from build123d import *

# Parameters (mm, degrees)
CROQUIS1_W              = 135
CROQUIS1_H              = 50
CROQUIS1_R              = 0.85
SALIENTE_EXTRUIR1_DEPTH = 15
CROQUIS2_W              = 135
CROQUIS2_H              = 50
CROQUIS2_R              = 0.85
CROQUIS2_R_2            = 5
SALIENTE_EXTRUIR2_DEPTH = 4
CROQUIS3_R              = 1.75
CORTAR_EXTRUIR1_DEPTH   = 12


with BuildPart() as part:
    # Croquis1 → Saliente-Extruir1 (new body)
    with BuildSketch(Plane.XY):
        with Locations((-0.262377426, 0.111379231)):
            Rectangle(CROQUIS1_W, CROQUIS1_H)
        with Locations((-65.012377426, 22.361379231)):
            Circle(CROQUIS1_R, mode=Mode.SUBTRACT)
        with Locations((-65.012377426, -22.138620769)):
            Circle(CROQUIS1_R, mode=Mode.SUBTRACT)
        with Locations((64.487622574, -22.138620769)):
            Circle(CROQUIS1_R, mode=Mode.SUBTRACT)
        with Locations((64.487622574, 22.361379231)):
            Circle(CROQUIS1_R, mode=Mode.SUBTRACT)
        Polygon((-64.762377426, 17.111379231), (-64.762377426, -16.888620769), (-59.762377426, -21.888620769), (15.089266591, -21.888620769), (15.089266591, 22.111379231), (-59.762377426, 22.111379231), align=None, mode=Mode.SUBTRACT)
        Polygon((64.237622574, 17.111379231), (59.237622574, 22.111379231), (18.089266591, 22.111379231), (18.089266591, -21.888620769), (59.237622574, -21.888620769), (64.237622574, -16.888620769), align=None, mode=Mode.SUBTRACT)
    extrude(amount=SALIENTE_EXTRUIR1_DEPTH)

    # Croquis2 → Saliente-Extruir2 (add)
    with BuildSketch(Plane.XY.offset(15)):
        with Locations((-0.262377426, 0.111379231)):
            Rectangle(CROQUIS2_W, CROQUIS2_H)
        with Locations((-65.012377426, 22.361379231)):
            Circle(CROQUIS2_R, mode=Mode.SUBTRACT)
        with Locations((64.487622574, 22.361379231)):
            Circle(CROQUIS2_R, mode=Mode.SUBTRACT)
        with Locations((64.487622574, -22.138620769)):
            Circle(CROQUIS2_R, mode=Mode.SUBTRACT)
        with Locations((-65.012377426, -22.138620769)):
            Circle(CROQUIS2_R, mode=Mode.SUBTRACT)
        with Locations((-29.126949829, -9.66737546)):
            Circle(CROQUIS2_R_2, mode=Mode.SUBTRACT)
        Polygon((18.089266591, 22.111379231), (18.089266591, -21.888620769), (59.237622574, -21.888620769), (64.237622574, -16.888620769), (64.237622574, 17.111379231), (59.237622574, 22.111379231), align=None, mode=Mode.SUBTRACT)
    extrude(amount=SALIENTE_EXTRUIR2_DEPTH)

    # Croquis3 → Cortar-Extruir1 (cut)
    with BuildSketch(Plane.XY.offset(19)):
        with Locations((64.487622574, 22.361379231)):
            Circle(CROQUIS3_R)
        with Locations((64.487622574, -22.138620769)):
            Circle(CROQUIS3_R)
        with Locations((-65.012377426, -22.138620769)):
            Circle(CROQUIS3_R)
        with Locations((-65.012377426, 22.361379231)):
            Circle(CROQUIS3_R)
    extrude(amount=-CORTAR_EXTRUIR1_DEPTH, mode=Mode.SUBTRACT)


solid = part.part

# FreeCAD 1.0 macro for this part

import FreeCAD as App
import Part
import Sketcher
from FreeCAD import Vector
Q = App.Units.Quantity


def add_polygon(sketch, points):
    """Adds a closed chain of lines whose ends are joined by coincident constraints."""
    first, n = sketch.GeometryCount, len(points)
    for a, b in zip(points, points[1:] + points[:1]):
        sketch.addGeometry(Part.LineSegment(App.Vector(*a, 0), App.Vector(*b, 0)), False)
    for i in range(n):
        sketch.addConstraint(Sketcher.Constraint("Coincident", first + i, 2, first + (i + 1) % n, 1))

doc = App.newDocument("Part")
body = doc.addObject("PartDesign::Body", "Body")

# Sketch on XY plane
sketch1 = doc.addObject("Sketcher::SketchObject", "Sketch")
body.addObject(sketch1)
sketch1.AttachmentSupport = (doc.XY_Plane, [""])
sketch1.MapMode = "FlatFace"
add_polygon(sketch1, [(-67.762377, 25.111379), (-67.762377, -24.888621), (67.237623, -24.888621), (67.237623, 25.111379)])  # lines 0-3
sketch1.addGeometry(Part.Circle(Vector(-65.012377, -22.138621, 0), Vector(0, 0, 1), 0.85), False)  # 4
sketch1.addGeometry(Part.Circle(Vector(64.487623, -22.138621, 0), Vector(0, 0, 1), 0.85), False)  # 5
add_polygon(sketch1, [(-64.762377, -16.888621), (-64.762377, 17.111379), (-59.762377, 22.111379), (15.089267, 22.111379), (15.089267, -21.888621), (-59.762377, -21.888621)])  # lines 6-11
sketch1.addGeometry(Part.Circle(Vector(-65.012377, 22.361379, 0), Vector(0, 0, 1), 0.85), False)  # 12
add_polygon(sketch1, [(59.237623, 22.111379), (64.237623, 17.111379), (64.237623, -16.888621), (59.237623, -21.888621), (18.089267, -21.888621), (18.089267, 22.111379)])  # lines 13-18
sketch1.addGeometry(Part.Circle(Vector(64.487623, 22.361379, 0), Vector(0, 0, 1), 0.85), False)  # 19
sketch1.addConstraint([
    Sketcher.Constraint("Vertical", 0),
    Sketcher.Constraint("Horizontal", 1),
    Sketcher.Constraint("Vertical", 2),
    Sketcher.Constraint("Horizontal", 3),
    Sketcher.Constraint("Vertical", 6),
    Sketcher.Constraint("Horizontal", 8),
    Sketcher.Constraint("Vertical", 9),
    Sketcher.Constraint("Horizontal", 10),
    Sketcher.Constraint("Vertical", 14),
    Sketcher.Constraint("Horizontal", 16),
    Sketcher.Constraint("Vertical", 17),
    Sketcher.Constraint("Horizontal", 18),
    Sketcher.Constraint("Equal", 4, 5),
    Sketcher.Constraint("Equal", 5, 12),
    Sketcher.Constraint("Equal", 12, 19),
    Sketcher.Constraint("Perpendicular", 7, 11),
    Sketcher.Constraint("Parallel", 11, 13),
    Sketcher.Constraint("Perpendicular", 13, 15),
    Sketcher.Constraint("Horizontal", 4, 3, 5, 3),
    Sketcher.Constraint("Horizontal", 12, 3, 19, 3),
    Sketcher.Constraint("Horizontal", 6, 2, 13, 2),
    Sketcher.Constraint("Horizontal", 11, 2, 14, 2),
    Sketcher.Constraint("Horizontal", 10, 2, 15, 2),
    Sketcher.Constraint("Horizontal", 8, 2, 17, 2),
    Sketcher.Constraint("Vertical", 4, 3, 12, 3),
    Sketcher.Constraint("Vertical", 5, 3, 19, 3),
    Sketcher.Constraint("Vertical", 7, 2, 10, 2),
    Sketcher.Constraint("Vertical", 15, 2, 18, 2),
    Sketcher.Constraint("Diameter", 4, Q("1.7 mm")),
    Sketcher.Constraint("DistanceX", 1, 1, 1, 2, Q("135 mm")),
    Sketcher.Constraint("DistanceY", 0, 2, 0, 1, Q("50 mm")),
    Sketcher.Constraint("DistanceY", 6, 1, 6, 2, Q("34 mm")),
    Sketcher.Constraint("DistanceY", 9, 2, 9, 1, Q("44 mm")),
    Sketcher.Constraint("DistanceX", 3, 2, 6, 2, Q("3 mm")),
    Sketcher.Constraint("DistanceY", 6, 2, 3, 2, Q("8 mm")),
    Sketcher.Constraint("DistanceX", 13, 2, 2, 2, Q("3 mm")),
    Sketcher.Constraint("DistanceX", 9, 2, 16, 2, Q("3 mm")),
    Sketcher.Constraint("DistanceX", 4, 3, 5, 3, Q("129.5 mm")),
    Sketcher.Constraint("DistanceY", 4, 3, 12, 3, Q("44.5 mm")),
    Sketcher.Constraint("DistanceX", 0, 2, 4, 3, Q("2.75 mm")),
    Sketcher.Constraint("DistanceY", 0, 2, 4, 3, Q("2.75 mm")),
    Sketcher.Constraint("DistanceX", 8, 1, 8, 2, Q("74.851644 mm")),
    Sketcher.Constraint("DistanceY", 4, 3, -1, 1, Q("22.138621 mm")),
    Sketcher.Constraint("DistanceX", 4, 3, -1, 1, Q("65.012377 mm")),
])
pad1 = doc.addObject("PartDesign::Pad", "Pad")
body.addObject(pad1)
pad1.Profile = sketch1
pad1.Length = 15

# Sketch on XY plane
sketch2 = doc.addObject("Sketcher::SketchObject", "Sketch001")
body.addObject(sketch2)
sketch2.AttachmentSupport = (doc.XY_Plane, [""])
sketch2.MapMode = "FlatFace"
sketch2.AttachmentOffset = App.Placement(Vector(0, 0, 15), App.Rotation())
add_polygon(sketch2, [(-67.762377, 25.111379), (-67.762377, -24.888621), (67.237623, -24.888621), (67.237623, 25.111379)])  # lines 0-3
sketch2.addGeometry(Part.Circle(Vector(-65.012377, -22.138621, 0), Vector(0, 0, 1), 0.85), False)  # 4
sketch2.addGeometry(Part.Circle(Vector(-29.12695, -9.667375, 0), Vector(0, 0, 1), 5), False)  # 5
sketch2.addGeometry(Part.Circle(Vector(64.487623, -22.138621, 0), Vector(0, 0, 1), 0.85), False)  # 6
sketch2.addGeometry(Part.Circle(Vector(-65.012377, 22.361379, 0), Vector(0, 0, 1), 0.85), False)  # 7
add_polygon(sketch2, [(18.089267, -21.888621), (18.089267, 22.111379), (59.237623, 22.111379), (64.237623, 17.111379), (64.237623, -16.888621), (59.237623, -21.888621)])  # lines 8-13
sketch2.addGeometry(Part.Circle(Vector(64.487623, 22.361379, 0), Vector(0, 0, 1), 0.85), False)  # 14
sketch2.addConstraint([
    Sketcher.Constraint("Vertical", 0),
    Sketcher.Constraint("Horizontal", 1),
    Sketcher.Constraint("Vertical", 2),
    Sketcher.Constraint("Horizontal", 3),
    Sketcher.Constraint("Vertical", 8),
    Sketcher.Constraint("Horizontal", 9),
    Sketcher.Constraint("Vertical", 11),
    Sketcher.Constraint("Horizontal", 13),
    Sketcher.Constraint("Equal", 4, 6),
    Sketcher.Constraint("Equal", 6, 7),
    Sketcher.Constraint("Equal", 7, 14),
    Sketcher.Constraint("Perpendicular", 10, 12),
    Sketcher.Constraint("Horizontal", 4, 3, 6, 3),
    Sketcher.Constraint("Horizontal", 7, 3, 14, 3),
    Sketcher.Constraint("Vertical", 4, 3, 7, 3),
    Sketcher.Constraint("Vertical", 6, 3, 14, 3),
    Sketcher.Constraint("Vertical", 9, 2, 12, 2),
    Sketcher.Constraint("Equal", 10, 12),
    Sketcher.Constraint("Diameter", 5, Q("10 mm")),
    Sketcher.Constraint("Diameter", 4, Q("1.7 mm")),
    Sketcher.Constraint("DistanceX", 1, 1, 1, 2, Q("135 mm")),
    Sketcher.Constraint("DistanceY", 0, 2, 0, 1, Q("50 mm")),
    Sketcher.Constraint("DistanceY", 8, 1, 8, 2, Q("44 mm")),
    Sketcher.Constraint("DistanceY", 11, 2, 11, 1, Q("34 mm")),
    Sketcher.Constraint("DistanceY", 8, 2, 2, 2, Q("3 mm")),
    Sketcher.Constraint("DistanceX", 9, 2, 2, 2, Q("8 mm")),
    Sketcher.Constraint("DistanceX", 4, 3, 6, 3, Q("129.5 mm")),
    Sketcher.Constraint("DistanceY", 4, 3, 7, 3, Q("44.5 mm")),
    Sketcher.Constraint("DistanceX", 0, 2, 4, 3, Q("2.75 mm")),
    Sketcher.Constraint("DistanceY", 0, 2, 4, 3, Q("2.75 mm")),
    Sketcher.Constraint("DistanceX", 9, 1, 9, 2, Q("41.148356 mm")),
    Sketcher.Constraint("DistanceY", 4, 3, -1, 1, Q("22.138621 mm")),
    Sketcher.Constraint("DistanceX", 5, 3, -1, 1, Q("29.12695 mm")),
    Sketcher.Constraint("DistanceX", 4, 3, -1, 1, Q("65.012377 mm")),
    Sketcher.Constraint("DistanceY", 5, 3, -1, 1, Q("9.667375 mm")),
])
pad2 = doc.addObject("PartDesign::Pad", "Pad001")
body.addObject(pad2)
pad2.Profile = sketch2
pad2.Length = 4

# Sketch on XY plane
sketch3 = doc.addObject("Sketcher::SketchObject", "Sketch002")
body.addObject(sketch3)
sketch3.AttachmentSupport = (doc.XY_Plane, [""])
sketch3.MapMode = "FlatFace"
sketch3.AttachmentOffset = App.Placement(Vector(0, 0, 19), App.Rotation())
sketch3.addGeometry([
    Part.Circle(Vector(64.487623, 22.361379, 0), Vector(0, 0, 1), 1.75),
    Part.Circle(Vector(64.487623, -22.138621, 0), Vector(0, 0, 1), 1.75),
    Part.Circle(Vector(-65.012377, -22.138621, 0), Vector(0, 0, 1), 1.75),
    Part.Circle(Vector(-65.012377, 22.361379, 0), Vector(0, 0, 1), 1.75),
], False)
sketch3.addConstraint([
    Sketcher.Constraint("Equal", 0, 1),
    Sketcher.Constraint("Equal", 1, 2),
    Sketcher.Constraint("Equal", 2, 3),
    Sketcher.Constraint("Horizontal", 1, 3, 2, 3),
    Sketcher.Constraint("Horizontal", 0, 3, 3, 3),
    Sketcher.Constraint("Vertical", 0, 3, 1, 3),
    Sketcher.Constraint("Vertical", 2, 3, 3, 3),
    Sketcher.Constraint("Diameter", 0, Q("3.5 mm")),
    Sketcher.Constraint("DistanceY", 1, 3, 0, 3, Q("44.5 mm")),
    Sketcher.Constraint("DistanceX", 2, 3, 1, 3, Q("129.5 mm")),
    Sketcher.Constraint("DistanceY", -1, 1, 0, 3, Q("22.361379 mm")),
    Sketcher.Constraint("DistanceX", -1, 1, 0, 3, Q("64.487623 mm")),
])
pocket1 = doc.addObject("PartDesign::Pocket", "Pocket")
body.addObject(pocket1)
pocket1.Profile = sketch3
pocket1.Length = 12

doc.recompute()
